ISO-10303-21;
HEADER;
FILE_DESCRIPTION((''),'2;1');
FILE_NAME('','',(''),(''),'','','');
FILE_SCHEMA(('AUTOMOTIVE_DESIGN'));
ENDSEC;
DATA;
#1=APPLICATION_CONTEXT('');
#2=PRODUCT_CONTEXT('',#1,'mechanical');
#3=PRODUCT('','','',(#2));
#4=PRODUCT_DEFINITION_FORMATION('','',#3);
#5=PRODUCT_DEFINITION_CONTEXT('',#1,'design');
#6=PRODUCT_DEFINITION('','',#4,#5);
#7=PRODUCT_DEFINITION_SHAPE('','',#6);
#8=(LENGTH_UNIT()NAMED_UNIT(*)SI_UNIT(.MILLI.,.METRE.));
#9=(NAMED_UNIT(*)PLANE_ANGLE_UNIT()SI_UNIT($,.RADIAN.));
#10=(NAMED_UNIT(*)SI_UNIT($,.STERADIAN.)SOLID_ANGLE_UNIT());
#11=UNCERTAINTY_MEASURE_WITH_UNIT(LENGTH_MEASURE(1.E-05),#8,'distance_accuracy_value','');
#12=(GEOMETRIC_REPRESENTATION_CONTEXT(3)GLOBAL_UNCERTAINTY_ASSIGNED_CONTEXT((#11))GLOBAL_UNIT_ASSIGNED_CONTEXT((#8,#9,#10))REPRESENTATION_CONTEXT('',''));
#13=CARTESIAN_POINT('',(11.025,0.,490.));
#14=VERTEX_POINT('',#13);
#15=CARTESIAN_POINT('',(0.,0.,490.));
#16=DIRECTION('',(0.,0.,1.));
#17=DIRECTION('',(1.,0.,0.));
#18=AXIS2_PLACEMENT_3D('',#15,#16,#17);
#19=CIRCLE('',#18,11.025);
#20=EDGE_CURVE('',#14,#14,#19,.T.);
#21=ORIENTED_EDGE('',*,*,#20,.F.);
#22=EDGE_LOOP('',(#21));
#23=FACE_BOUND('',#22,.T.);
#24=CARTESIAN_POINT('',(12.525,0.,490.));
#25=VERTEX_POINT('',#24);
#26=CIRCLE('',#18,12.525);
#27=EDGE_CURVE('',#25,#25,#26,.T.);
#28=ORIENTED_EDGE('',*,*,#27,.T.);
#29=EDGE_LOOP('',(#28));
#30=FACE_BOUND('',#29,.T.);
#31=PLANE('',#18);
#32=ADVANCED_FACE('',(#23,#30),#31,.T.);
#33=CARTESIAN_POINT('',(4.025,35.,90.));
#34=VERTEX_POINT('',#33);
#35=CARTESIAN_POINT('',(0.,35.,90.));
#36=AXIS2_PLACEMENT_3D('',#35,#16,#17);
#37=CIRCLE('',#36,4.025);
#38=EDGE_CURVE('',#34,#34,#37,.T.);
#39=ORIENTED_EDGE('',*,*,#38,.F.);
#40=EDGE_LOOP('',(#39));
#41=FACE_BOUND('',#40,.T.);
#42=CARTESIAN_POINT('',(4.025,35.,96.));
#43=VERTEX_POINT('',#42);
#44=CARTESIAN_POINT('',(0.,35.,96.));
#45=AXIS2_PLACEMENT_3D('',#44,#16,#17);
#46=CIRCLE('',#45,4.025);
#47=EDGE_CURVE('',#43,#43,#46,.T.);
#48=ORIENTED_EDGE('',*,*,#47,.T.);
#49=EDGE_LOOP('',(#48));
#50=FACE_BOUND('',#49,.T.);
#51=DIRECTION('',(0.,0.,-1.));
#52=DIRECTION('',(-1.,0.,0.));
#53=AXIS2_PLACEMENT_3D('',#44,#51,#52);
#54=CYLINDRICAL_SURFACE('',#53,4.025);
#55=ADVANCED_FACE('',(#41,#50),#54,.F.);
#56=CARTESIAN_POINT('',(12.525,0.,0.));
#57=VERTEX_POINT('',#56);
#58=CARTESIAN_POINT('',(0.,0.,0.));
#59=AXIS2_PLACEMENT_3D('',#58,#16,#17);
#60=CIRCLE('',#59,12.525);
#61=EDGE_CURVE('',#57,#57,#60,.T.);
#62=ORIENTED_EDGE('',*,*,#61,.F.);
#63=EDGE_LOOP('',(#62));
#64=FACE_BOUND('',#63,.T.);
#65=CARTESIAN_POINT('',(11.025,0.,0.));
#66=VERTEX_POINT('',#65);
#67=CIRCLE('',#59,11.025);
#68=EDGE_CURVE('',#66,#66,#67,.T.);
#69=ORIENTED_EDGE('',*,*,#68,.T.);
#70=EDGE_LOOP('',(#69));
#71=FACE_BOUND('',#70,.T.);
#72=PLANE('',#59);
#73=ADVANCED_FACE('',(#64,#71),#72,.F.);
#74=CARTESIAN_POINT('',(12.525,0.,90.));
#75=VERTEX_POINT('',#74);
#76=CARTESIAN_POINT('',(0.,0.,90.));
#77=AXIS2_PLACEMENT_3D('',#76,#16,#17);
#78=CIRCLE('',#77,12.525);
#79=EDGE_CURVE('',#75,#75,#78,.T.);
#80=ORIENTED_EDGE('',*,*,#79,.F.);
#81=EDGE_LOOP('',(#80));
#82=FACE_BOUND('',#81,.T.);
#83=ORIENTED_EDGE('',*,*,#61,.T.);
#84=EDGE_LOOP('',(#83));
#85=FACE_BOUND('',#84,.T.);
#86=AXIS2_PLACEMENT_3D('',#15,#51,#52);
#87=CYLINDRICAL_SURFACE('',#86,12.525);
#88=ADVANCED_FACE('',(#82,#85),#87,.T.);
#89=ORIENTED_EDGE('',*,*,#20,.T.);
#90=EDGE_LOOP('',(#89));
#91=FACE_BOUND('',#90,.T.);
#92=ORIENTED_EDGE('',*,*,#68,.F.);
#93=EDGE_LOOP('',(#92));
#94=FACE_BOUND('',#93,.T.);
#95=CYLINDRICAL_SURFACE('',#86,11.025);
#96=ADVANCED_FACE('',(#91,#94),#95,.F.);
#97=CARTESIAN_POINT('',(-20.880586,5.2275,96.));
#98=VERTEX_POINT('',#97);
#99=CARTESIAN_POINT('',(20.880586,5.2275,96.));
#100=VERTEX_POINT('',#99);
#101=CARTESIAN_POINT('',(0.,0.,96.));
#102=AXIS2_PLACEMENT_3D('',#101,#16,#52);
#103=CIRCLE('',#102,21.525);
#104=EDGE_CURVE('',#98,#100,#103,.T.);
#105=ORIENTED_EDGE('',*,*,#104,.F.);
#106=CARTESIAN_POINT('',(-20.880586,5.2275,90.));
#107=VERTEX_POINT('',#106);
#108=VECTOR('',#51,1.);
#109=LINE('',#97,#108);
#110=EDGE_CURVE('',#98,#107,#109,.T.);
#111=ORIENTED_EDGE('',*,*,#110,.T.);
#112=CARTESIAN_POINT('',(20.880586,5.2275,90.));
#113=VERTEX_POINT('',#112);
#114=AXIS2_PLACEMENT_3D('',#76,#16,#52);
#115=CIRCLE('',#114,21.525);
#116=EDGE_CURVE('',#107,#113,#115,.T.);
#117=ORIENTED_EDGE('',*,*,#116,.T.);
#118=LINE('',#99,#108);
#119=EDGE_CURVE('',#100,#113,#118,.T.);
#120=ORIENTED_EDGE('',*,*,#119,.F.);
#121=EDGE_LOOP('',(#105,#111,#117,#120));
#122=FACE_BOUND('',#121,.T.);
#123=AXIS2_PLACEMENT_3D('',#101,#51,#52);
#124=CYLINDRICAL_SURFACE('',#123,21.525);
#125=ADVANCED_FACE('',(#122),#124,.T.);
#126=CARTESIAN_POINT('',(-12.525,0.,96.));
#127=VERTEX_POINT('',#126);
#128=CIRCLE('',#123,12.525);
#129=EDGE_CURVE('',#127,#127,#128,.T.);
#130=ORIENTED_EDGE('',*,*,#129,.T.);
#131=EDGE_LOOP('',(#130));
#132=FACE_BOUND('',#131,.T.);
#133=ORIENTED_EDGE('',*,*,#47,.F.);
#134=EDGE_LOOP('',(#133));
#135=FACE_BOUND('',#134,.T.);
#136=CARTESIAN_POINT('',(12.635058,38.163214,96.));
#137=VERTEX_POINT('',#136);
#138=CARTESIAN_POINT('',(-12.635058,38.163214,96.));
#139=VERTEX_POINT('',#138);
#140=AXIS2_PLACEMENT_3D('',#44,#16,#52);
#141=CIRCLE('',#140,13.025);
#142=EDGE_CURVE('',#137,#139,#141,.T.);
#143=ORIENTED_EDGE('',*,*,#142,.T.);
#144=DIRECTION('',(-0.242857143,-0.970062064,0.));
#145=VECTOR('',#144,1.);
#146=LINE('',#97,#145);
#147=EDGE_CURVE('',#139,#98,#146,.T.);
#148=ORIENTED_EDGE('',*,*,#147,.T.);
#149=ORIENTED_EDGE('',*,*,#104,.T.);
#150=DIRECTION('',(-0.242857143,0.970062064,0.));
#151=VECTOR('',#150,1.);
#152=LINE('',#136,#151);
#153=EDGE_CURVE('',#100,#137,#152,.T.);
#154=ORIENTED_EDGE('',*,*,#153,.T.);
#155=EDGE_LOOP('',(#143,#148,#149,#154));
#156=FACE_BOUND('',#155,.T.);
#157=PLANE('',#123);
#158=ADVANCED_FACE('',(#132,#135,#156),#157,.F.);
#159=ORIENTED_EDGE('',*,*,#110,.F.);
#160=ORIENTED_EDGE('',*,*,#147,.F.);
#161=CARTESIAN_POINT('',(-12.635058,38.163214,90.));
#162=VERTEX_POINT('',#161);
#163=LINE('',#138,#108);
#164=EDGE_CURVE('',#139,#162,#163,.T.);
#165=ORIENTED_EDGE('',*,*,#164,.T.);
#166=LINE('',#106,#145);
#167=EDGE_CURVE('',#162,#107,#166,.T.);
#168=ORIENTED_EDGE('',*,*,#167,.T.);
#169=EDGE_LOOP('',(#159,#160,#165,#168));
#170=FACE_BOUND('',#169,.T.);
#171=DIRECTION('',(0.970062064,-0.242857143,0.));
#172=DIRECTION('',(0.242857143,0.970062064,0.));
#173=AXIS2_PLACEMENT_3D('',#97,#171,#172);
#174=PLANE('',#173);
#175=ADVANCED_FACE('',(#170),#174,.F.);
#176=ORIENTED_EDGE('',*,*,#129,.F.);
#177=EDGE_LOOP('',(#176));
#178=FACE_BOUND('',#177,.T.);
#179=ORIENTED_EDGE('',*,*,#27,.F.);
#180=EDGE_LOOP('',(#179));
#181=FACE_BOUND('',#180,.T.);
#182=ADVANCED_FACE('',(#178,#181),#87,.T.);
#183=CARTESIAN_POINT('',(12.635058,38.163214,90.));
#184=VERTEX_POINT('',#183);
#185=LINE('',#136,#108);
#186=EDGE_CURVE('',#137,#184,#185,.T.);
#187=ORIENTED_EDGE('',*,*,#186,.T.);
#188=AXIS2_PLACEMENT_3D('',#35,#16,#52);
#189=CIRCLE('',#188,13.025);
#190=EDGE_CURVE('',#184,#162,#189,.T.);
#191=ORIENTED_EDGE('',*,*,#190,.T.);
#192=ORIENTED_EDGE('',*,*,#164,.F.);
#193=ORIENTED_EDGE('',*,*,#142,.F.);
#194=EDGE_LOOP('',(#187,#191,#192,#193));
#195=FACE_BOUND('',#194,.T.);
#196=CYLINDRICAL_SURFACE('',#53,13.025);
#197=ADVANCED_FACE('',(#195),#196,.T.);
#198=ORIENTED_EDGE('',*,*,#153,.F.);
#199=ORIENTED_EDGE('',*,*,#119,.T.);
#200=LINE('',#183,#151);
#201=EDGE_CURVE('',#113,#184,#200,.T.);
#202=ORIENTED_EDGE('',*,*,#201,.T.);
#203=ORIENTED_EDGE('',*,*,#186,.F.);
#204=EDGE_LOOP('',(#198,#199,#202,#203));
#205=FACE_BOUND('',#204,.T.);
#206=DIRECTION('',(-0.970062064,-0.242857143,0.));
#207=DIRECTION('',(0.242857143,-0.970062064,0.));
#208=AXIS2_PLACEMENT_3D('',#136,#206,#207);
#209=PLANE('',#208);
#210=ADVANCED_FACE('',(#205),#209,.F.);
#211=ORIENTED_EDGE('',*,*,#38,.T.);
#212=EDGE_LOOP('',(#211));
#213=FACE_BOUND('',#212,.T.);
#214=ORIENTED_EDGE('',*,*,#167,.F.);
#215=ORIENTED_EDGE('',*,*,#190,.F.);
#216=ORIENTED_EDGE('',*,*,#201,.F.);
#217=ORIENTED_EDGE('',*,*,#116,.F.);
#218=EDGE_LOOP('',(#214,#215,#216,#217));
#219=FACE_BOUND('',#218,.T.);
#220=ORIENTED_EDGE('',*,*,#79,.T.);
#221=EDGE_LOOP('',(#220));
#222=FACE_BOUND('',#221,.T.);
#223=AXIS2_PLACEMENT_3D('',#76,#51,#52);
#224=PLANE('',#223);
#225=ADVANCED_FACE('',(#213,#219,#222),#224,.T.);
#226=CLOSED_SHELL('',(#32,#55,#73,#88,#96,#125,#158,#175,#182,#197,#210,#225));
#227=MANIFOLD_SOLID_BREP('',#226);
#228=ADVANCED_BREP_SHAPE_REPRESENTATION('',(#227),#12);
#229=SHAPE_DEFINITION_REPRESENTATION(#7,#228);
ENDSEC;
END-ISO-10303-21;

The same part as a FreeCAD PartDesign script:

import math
import FreeCAD as App
import Part
import Sketcher

doc = App.newDocument("Part")
body = doc.addObject("PartDesign::Body", "Body")

# Sketch on XY plane
sketch1 = body.newObject("Sketcher::SketchObject", "Sketch")
sketch1.AttachmentSupport = (doc.getObject("XY_Plane"), [""])
sketch1.MapMode = "FlatFace"
sketch1.addGeometry(Part.Circle(App.Vector(0, 0, 0), App.Vector(0, 0, 1), 13), False)
sketch1.addGeometry(Part.Circle(App.Vector(0, 0, 0), App.Vector(0, 0, 1), 11), False)
sketch1.addConstraint(Sketcher.Constraint("Coincident", 0, 3, -1, 1))
sketch1.addConstraint(Sketcher.Constraint("Coincident", 1, 3, -1, 1))
sketch1.addConstraint(Sketcher.Constraint("Diameter", 0, 25.05))
sketch1.addConstraint(Sketcher.Constraint("Diameter", 1, 22.05))
pad1 = body.newObject("PartDesign::Pad", "Pad")
pad1.Profile = sketch1
pad1.Length = 490

# Sketch on XY plane
sketch2 = body.newObject("Sketcher::SketchObject", "Sketch001")
sketch2.AttachmentSupport = (doc.getObject("XY_Plane"), [""])
sketch2.MapMode = "FlatFace"
sketch2.AttachmentOffset = App.Placement(App.Vector(0, 0, 90), App.Rotation())
sketch2.addGeometry(Part.LineSegment(App.Vector(-12.6, 38.2, 0), App.Vector(-20.9, 5.2, 0)), False)
sketch2.addGeometry(Part.ArcOfCircle(Part.Circle(App.Vector(0, 0, 0), App.Vector(0, 0, 1), 21.5), math.radians(166), math.radians(374)), False)
sketch2.addGeometry(Part.LineSegment(App.Vector(20.9, 5.2, 0), App.Vector(12.6, 38.2, 0)), False)
sketch2.addGeometry(Part.ArcOfCircle(Part.Circle(App.Vector(0, 35, 0), App.Vector(0, 0, 1), 13), math.radians(14), math.radians(166)), False)
sketch2.addGeometry(Part.Circle(App.Vector(0, 0, 0), App.Vector(0, 0, 1), 12.5), False)
sketch2.addGeometry(Part.Circle(App.Vector(0, 35, 0), App.Vector(0, 0, 1), 4), False)
sketch2.addConstraint(Sketcher.Constraint("Tangent", 0, 2, 1, 1))
sketch2.addConstraint(Sketcher.Constraint("Tangent", 1, 2, 2, 1))
sketch2.addConstraint(Sketcher.Constraint("Tangent", 2, 2, 3, 1))
sketch2.addConstraint(Sketcher.Constraint("Tangent", 3, 2, 0, 1))
sketch2.addConstraint(Sketcher.Constraint("Coincident", 1, 3, -1, 1))
sketch2.addConstraint(Sketcher.Constraint("Coincident", 4, 3, -1, 1))
sketch2.addConstraint(Sketcher.Constraint("Coincident", 5, 3, 3, 3))
sketch2.addConstraint(Sketcher.Constraint("PointOnObject", 3, 3, -2))
sketch2.addConstraint(Sketcher.Constraint("Diameter", 4, 25.05))
sketch2.addConstraint(Sketcher.Constraint("Diameter", 5, 8.05))
sketch2.addConstraint(Sketcher.Constraint("DistanceY", -1, 1, 3, 3, 35.0))
sketch2.addConstraint(Sketcher.Constraint("Radius", 1, 21.525))
sketch2.addConstraint(Sketcher.Constraint("Radius", 3, 13.025))
pad2 = body.newObject("PartDesign::Pad", "Pad001")
pad2.Profile = sketch2
pad2.Length = 6

doc.recompute()
